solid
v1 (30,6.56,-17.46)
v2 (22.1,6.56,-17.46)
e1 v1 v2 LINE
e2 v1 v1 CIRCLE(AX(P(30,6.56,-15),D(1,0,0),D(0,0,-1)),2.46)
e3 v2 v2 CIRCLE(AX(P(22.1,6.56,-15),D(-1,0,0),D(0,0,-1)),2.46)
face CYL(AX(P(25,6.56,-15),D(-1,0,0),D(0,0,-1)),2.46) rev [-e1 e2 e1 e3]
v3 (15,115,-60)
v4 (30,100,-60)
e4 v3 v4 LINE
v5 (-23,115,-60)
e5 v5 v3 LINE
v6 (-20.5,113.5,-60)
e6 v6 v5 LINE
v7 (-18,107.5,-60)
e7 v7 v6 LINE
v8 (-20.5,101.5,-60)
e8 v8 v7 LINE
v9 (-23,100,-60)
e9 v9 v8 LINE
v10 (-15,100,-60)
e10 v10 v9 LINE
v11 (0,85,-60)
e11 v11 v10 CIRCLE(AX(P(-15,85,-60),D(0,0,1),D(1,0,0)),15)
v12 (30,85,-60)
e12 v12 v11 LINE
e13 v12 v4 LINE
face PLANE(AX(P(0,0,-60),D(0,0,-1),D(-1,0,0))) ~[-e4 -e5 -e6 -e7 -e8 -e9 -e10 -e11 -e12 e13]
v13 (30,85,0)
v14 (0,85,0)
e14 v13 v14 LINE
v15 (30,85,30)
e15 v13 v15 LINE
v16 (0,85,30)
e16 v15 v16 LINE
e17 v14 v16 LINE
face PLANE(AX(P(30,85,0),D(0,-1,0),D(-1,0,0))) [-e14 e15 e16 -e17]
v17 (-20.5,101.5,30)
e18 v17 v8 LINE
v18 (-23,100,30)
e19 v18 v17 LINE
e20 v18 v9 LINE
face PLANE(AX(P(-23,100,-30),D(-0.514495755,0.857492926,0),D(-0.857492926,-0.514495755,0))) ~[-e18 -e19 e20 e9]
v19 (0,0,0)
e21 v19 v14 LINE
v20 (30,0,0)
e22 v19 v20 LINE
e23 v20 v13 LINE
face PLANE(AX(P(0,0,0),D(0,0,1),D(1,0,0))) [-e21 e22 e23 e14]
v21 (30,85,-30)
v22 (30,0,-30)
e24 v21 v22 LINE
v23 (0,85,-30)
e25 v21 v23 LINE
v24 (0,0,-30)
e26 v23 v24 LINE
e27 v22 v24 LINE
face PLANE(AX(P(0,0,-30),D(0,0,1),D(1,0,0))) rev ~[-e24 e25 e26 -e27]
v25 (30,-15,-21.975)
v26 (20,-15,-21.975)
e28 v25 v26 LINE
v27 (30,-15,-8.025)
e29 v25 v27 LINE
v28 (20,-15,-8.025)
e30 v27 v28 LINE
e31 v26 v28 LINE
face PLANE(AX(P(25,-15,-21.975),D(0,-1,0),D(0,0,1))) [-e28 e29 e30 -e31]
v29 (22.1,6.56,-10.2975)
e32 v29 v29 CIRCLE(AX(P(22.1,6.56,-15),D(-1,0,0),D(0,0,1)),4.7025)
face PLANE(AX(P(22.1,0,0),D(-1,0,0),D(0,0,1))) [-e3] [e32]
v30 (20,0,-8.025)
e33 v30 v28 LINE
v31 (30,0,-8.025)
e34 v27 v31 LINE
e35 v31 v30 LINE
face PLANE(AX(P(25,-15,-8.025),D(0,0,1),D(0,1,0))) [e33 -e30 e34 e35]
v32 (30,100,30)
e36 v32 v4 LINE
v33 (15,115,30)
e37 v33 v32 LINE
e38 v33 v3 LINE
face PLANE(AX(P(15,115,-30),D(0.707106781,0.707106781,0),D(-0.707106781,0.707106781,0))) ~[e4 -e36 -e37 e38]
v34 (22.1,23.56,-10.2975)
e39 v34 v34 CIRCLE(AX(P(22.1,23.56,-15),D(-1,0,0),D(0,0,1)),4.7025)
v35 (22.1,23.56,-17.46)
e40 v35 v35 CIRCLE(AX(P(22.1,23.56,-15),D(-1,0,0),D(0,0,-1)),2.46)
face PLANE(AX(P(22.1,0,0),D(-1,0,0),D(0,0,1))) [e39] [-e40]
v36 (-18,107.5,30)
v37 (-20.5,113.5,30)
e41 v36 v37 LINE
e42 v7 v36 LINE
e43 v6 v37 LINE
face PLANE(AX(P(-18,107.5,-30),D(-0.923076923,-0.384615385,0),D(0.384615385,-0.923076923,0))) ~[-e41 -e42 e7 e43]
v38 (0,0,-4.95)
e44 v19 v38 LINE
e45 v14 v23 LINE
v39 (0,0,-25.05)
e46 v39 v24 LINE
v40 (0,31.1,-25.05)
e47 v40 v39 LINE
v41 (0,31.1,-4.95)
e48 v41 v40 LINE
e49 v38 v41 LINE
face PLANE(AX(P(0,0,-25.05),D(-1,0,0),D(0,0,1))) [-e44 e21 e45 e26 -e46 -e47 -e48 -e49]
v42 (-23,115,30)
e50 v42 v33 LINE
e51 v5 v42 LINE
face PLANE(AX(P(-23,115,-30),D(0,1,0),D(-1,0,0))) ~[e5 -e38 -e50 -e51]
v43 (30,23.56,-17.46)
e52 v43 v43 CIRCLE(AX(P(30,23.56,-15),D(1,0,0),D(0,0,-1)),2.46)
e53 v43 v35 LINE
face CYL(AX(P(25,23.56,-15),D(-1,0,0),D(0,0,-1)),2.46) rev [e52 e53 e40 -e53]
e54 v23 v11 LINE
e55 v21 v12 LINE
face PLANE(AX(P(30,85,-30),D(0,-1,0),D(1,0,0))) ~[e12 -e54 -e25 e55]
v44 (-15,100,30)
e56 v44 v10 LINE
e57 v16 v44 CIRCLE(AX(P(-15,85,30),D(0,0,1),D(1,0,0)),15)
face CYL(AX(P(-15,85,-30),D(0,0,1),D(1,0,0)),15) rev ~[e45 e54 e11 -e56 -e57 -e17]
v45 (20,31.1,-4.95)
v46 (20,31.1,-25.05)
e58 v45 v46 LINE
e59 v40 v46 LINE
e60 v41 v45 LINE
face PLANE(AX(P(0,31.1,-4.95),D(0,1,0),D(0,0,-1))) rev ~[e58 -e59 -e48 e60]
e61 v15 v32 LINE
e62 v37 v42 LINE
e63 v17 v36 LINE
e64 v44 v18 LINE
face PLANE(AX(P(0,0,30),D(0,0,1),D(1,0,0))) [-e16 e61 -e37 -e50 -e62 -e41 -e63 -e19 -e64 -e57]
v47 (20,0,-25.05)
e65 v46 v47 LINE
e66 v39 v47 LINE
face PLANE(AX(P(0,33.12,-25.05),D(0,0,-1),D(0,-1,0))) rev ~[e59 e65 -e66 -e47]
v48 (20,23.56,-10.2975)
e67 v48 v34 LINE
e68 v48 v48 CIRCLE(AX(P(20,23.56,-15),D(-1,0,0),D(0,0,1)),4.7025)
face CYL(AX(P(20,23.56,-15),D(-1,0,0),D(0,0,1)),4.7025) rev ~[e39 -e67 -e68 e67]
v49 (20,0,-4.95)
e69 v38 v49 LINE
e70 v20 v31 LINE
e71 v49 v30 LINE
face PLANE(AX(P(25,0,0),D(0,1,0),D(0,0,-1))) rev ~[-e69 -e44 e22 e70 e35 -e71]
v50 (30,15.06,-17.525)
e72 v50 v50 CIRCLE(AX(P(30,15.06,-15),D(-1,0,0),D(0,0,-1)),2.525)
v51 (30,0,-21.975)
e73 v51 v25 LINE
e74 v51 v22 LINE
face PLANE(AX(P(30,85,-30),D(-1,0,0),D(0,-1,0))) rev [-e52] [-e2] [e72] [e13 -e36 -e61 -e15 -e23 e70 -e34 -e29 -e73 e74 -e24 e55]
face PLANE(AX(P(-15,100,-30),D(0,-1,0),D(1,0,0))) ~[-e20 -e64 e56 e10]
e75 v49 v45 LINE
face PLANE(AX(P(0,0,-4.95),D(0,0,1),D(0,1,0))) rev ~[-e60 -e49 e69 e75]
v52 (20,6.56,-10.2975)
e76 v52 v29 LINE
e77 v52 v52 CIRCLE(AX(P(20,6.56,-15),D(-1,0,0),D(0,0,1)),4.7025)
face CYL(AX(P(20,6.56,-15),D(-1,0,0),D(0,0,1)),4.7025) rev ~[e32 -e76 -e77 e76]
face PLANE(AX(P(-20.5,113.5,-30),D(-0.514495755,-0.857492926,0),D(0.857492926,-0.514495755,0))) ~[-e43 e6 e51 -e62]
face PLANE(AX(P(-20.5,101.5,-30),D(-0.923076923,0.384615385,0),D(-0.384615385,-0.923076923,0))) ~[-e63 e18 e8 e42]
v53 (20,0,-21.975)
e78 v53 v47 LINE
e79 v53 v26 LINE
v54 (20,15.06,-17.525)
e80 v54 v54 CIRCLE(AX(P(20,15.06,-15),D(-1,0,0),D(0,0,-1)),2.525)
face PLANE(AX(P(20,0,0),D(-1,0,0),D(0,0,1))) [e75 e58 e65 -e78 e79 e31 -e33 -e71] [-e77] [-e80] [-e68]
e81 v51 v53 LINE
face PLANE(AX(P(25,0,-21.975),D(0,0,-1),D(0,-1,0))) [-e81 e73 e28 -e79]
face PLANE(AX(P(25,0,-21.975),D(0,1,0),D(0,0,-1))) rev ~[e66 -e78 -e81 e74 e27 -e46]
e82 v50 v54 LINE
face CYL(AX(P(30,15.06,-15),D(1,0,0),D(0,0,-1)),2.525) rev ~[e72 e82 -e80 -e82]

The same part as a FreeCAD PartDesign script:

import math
import FreeCAD as App
import Part
import Sketcher
Q = App.Units.Quantity


def add_polygon(sketch, points):
    """Adds a closed chain of lines whose ends are joined by coincident constraints."""
    first, n = sketch.GeometryCount, len(points)
    for a, b in zip(points, points[1:] + points[:1]):
        sketch.addGeometry(Part.LineSegment(App.Vector(*a, 0), App.Vector(*b, 0)), False)
    for i in range(n):
        sketch.addConstraint(Sketcher.Constraint("Coincident", first + i, 2, first + (i + 1) % n, 1))

doc = App.newDocument("Part")
body = doc.addObject("PartDesign::Body", "Body")

sketch1 = doc.addObject("Sketcher::SketchObject", "Sketch")
body.addObject(sketch1)
sketch1.AttachmentSupport = (doc.XY_Plane, [""])
sketch1.MapMode = "FlatFace"
add_polygon(sketch1, [(0, 40), (0, 0), (25, 0), (25, 40)])
sketch1.addConstraint(Sketcher.Constraint("Vertical", 0))
sketch1.addConstraint(Sketcher.Constraint("Horizontal", 1))
sketch1.addConstraint(Sketcher.Constraint("Vertical", 2))
sketch1.addConstraint(Sketcher.Constraint("Horizontal", 3))
sketch1.addConstraint(Sketcher.Constraint("Coincident", 0, 2, -1, 1))
sketch1.addConstraint(Sketcher.Constraint("DistanceX", 1, 1, 1, 2, Q("25 mm")))
sketch1.addConstraint(Sketcher.Constraint("DistanceY", 0, 2, 0, 1, Q("40 mm")))
pad1 = doc.addObject("PartDesign::Pad", "Pad")
body.addObject(pad1)
pad1.Profile = sketch1
pad1.Length = 30
pad1.Reversed = True

sketch2 = doc.addObject("Sketcher::SketchObject", "Sketch001")
body.addObject(sketch2)
sketch2.AttachmentSupport = (doc.YZ_Plane, [""])
sketch2.MapMode = "FlatFace"
sketch2.AttachmentOffset = App.Placement(App.Vector(0, 0, 25), App.Rotation())
sketch2.addGeometry(Part.Circle(App.Vector(6.6, -15, 0), App.Vector(0, 0, 1), 2.5), False)
sketch2.addConstraint(Sketcher.Constraint("Diameter", 0, Q("4.92 mm")))
sketch2.addConstraint(Sketcher.Constraint("DistanceY", 0, 3, -1, 1, Q("15 mm")))
sketch2.addConstraint(Sketcher.Constraint("DistanceX", -1, 1, 0, 3, Q("6.56 mm")))
pocket1 = doc.addObject("PartDesign::Pocket", "Pocket")
body.addObject(pocket1)
pocket1.Profile = sketch2
pocket1.Length = 30

sketch3 = doc.addObject("Sketcher::SketchObject", "Sketch002")
body.addObject(sketch3)
sketch3.AttachmentSupport = (doc.YZ_Plane, [""])
sketch3.MapMode = "FlatFace"
add_polygon(sketch3, [(0, -25), (0, -5), (33, -5), (33, -25)])
sketch3.addConstraint(Sketcher.Constraint("Vertical", 0))
sketch3.addConstraint(Sketcher.Constraint("Horizontal", 1))
sketch3.addConstraint(Sketcher.Constraint("Vertical", 2))
sketch3.addConstraint(Sketcher.Constraint("Horizontal", 3))
sketch3.addConstraint(Sketcher.Constraint("PointOnObject", 0, 2, -2))
sketch3.addConstraint(Sketcher.Constraint("DistanceY", 0, 1, 0, 2, Q("20.1 mm")))
sketch3.addConstraint(Sketcher.Constraint("DistanceX", 1, 1, 1, 2, Q("33.12 mm")))
sketch3.addConstraint(Sketcher.Constraint("DistanceY", 0, 2, -1, 1, Q("4.95 mm")))
pocket2 = doc.addObject("PartDesign::Pocket", "Pocket001")
body.addObject(pocket2)
pocket2.Profile = sketch3
pocket2.Length = 20
pocket2.Reversed = True

sketch4 = doc.addObject("Sketcher::SketchObject", "Sketch003")
body.addObject(sketch4)
sketch4.AttachmentSupport = (doc.XZ_Plane, [""])
sketch4.MapMode = "FlatFace"
add_polygon(sketch4, [(25, -8), (20, -8), (20, -22), (25, -22)])
sketch4.addConstraint(Sketcher.Constraint("Horizontal", 0))
sketch4.addConstraint(Sketcher.Constraint("Vertical", 1))
sketch4.addConstraint(Sketcher.Constraint("Horizontal", 2))
sketch4.addConstraint(Sketcher.Constraint("Vertical", 3))
sketch4.addConstraint(Sketcher.Constraint("DistanceY", 1, 2, 1, 1, Q("13.95 mm")))
sketch4.addConstraint(Sketcher.Constraint("DistanceX", 0, 2, 0, 1, Q("5 mm")))
sketch4.addConstraint(Sketcher.Constraint("DistanceX", -1, 1, 0, 2, Q("20 mm")))
sketch4.addConstraint(Sketcher.Constraint("DistanceY", 0, 2, -1, 1, Q("8.025 mm")))
pad2 = doc.addObject("PartDesign::Pad", "Pad001")
body.addObject(pad2)
pad2.Profile = sketch4
pad2.Length = 15

sketch5 = doc.addObject("Sketcher::SketchObject", "Sketch004")
body.addObject(sketch5)
sketch5.AttachmentSupport = (doc.YZ_Plane, [""])
sketch5.MapMode = "FlatFace"
sketch5.AttachmentOffset = App.Placement(App.Vector(0, 0, 20), App.Rotation())
sketch5.addGeometry(Part.Circle(App.Vector(6.6, -15, 0), App.Vector(0, 0, 1), 4.7), False)
sketch5.addGeometry(Part.Circle(App.Vector(6.6, -15, 0), App.Vector(0, 0, 1), 2.5), False)
sketch5.addConstraint(Sketcher.Constraint("Coincident", 1, 3, 0, 3))
sketch5.addConstraint(Sketcher.Constraint("Diameter", 0, Q("9.405 mm")))
sketch5.addConstraint(Sketcher.Constraint("Diameter", 1, Q("4.92 mm")))
sketch5.addConstraint(Sketcher.Constraint("DistanceY", 0, 3, -1, 1, Q("15 mm")))
sketch5.addConstraint(Sketcher.Constraint("DistanceX", -1, 1, 0, 3, Q("6.56 mm")))
pocket3 = doc.addObject("PartDesign::Pocket", "Pocket002")
body.addObject(pocket3)
pocket3.Profile = sketch5
pocket3.Length = 2.1
pocket3.Reversed = True

sketch6 = doc.addObject("Sketcher::SketchObject", "Sketch005")
body.addObject(sketch6)
sketch6.AttachmentSupport = (doc.YZ_Plane, [""])
sketch6.MapMode = "FlatFace"
sketch6.AttachmentOffset = App.Placement(App.Vector(0, 0, 25), App.Rotation())
sketch6.addGeometry(Part.Circle(App.Vector(23.6, -15, 0), App.Vector(0, 0, 1), 2.5), False)
sketch6.addConstraint(Sketcher.Constraint("Diameter", 0, Q("4.92 mm")))
sketch6.addConstraint(Sketcher.Constraint("DistanceY", 0, 3, -1, 1, Q("15 mm")))
sketch6.addConstraint(Sketcher.Constraint("DistanceX", -1, 1, 0, 3, Q("23.56 mm")))
pocket4 = doc.addObject("PartDesign::Pocket", "Pocket003")
body.addObject(pocket4)
pocket4.Profile = sketch6
pocket4.Length = 10

sketch7 = doc.addObject("Sketcher::SketchObject", "Sketch006")
body.addObject(sketch7)
sketch7.AttachmentSupport = (doc.YZ_Plane, [""])
sketch7.MapMode = "FlatFace"
sketch7.AttachmentOffset = App.Placement(App.Vector(0, 0, 20), App.Rotation())
sketch7.addGeometry(Part.Circle(App.Vector(23.6, -15, 0), App.Vector(0, 0, 1), 4.7), False)
sketch7.addGeometry(Part.Circle(App.Vector(23.6, -15, 0), App.Vector(0, 0, 1), 2.5), False)
sketch7.addConstraint(Sketcher.Constraint("Coincident", 1, 3, 0, 3))
sketch7.addConstraint(Sketcher.Constraint("Diameter", 0, Q("9.405 mm")))
sketch7.addConstraint(Sketcher.Constraint("Diameter", 1, Q("4.92 mm")))
sketch7.addConstraint(Sketcher.Constraint("DistanceY", 0, 3, -1, 1, Q("15 mm")))
sketch7.addConstraint(Sketcher.Constraint("DistanceX", -1, 1, 0, 3, Q("23.56 mm")))
pocket5 = doc.addObject("PartDesign::Pocket", "Pocket004")
body.addObject(pocket5)
pocket5.Profile = sketch7
pocket5.Length = 2.1
pocket5.Reversed = True

sketch8 = doc.addObject("Sketcher::SketchObject", "Sketch007")
body.addObject(sketch8)
sketch8.AttachmentSupport = (doc.YZ_Plane, [""])
sketch8.MapMode = "FlatFace"
sketch8.AttachmentOffset = App.Placement(App.Vector(0, 0, 25), App.Rotation())
add_polygon(sketch8, [(0, -30), (40, -30), (40, 0), (0, 0), (0, -8), (-15, -8), (-15, -22), (0, -22)])
sketch8.addGeometry(Part.Circle(App.Vector(6.6, -15, 0), App.Vector(0, 0, 1), 2.5), False)
sketch8.addGeometry(Part.Circle(App.Vector(23.6, -15, 0), App.Vector(0, 0, 1), 2.5), False)
sketch8.addConstraint(Sketcher.Constraint("Horizontal", 0))
sketch8.addConstraint(Sketcher.Constraint("Vertical", 1))
sketch8.addConstraint(Sketcher.Constraint("Horizontal", 2))
sketch8.addConstraint(Sketcher.Constraint("Vertical", 3))
sketch8.addConstraint(Sketcher.Constraint("Horizontal", 4))
sketch8.addConstraint(Sketcher.Constraint("Vertical", 5))
sketch8.addConstraint(Sketcher.Constraint("Horizontal", 6))
sketch8.addConstraint(Sketcher.Constraint("Vertical", 7))
sketch8.addConstraint(Sketcher.Constraint("Coincident", 2, 2, -1, 1))
sketch8.addConstraint(Sketcher.Constraint("Equal", 8, 9))
sketch8.addConstraint(Sketcher.Constraint("PointOnObject", 6, 2, -2))
sketch8.addConstraint(Sketcher.Constraint("Horizontal", 8, 3, 9, 3))
sketch8.addConstraint(Sketcher.Constraint("Equal", 3, 7))
sketch8.addConstraint(Sketcher.Constraint("Diameter", 8, Q("4.92 mm")))
sketch8.addConstraint(Sketcher.Constraint("DistanceX", 0, 1, 0, 2, Q("40 mm")))
sketch8.addConstraint(Sketcher.Constraint("DistanceX", 4, 2, 4, 1, Q("15 mm")))
sketch8.addConstraint(Sketcher.Constraint("DistanceY", 1, 1, 1, 2, Q("30 mm")))
sketch8.addConstraint(Sketcher.Constraint("DistanceY", 8, 3, -1, 1, Q("15 mm")))
sketch8.addConstraint(Sketcher.Constraint("DistanceX", 8, 3, 9, 3, Q("17 mm")))
sketch8.addConstraint(Sketcher.Constraint("DistanceY", 5, 2, 5, 1, Q("13.95 mm")))
sketch8.addConstraint(Sketcher.Constraint("DistanceX", -1, 1, 8, 3, Q("6.56 mm")))
pad3 = doc.addObject("PartDesign::Pad", "Pad002")
body.addObject(pad3)
pad3.Profile = sketch8
pad3.Length = 5

sketch9 = doc.addObject("Sketcher::SketchObject", "Sketch008")
body.addObject(sketch9)
sketch9.AttachmentSupport = (doc.XZ_Plane, [""])
sketch9.MapMode = "FlatFace"
sketch9.AttachmentOffset = App.Placement(App.Vector(0, 0, -40), App.Rotation())
add_polygon(sketch9, [(30, -30), (0, -30), (0, 0), (30, 0)])
sketch9.addConstraint(Sketcher.Constraint("Horizontal", 0))
sketch9.addConstraint(Sketcher.Constraint("Vertical", 1))
sketch9.addConstraint(Sketcher.Constraint("Horizontal", 2))
sketch9.addConstraint(Sketcher.Constraint("Vertical", 3))
sketch9.addConstraint(Sketcher.Constraint("Coincident", 1, 2, -1, 1))
sketch9.addConstraint(Sketcher.Constraint("Equal", 2, 1))
sketch9.addConstraint(Sketcher.Constraint("DistanceX", 0, 2, 0, 1, Q("30 mm")))
pad4 = doc.addObject("PartDesign::Pad", "Pad003")
body.addObject(pad4)
pad4.Profile = sketch9
pad4.Length = 30
pad4.Reversed = True

sketch10 = doc.addObject("Sketcher::SketchObject", "Sketch009")
body.addObject(sketch10)
sketch10.AttachmentSupport = (doc.YZ_Plane, [""])
sketch10.MapMode = "FlatFace"
sketch10.AttachmentOffset = App.Placement(App.Vector(0, 0, 30), App.Rotation())
sketch10.addGeometry(Part.Circle(App.Vector(15.1, -15, 0), App.Vector(0, 0, 1), 2.5), False)
sketch10.addConstraint(Sketcher.Constraint("Diameter", 0, Q("5.05 mm")))
sketch10.addConstraint(Sketcher.Constraint("DistanceY", 0, 3, -1, 1, Q("15 mm")))
sketch10.addConstraint(Sketcher.Constraint("DistanceX", -1, 1, 0, 3, Q("15.06 mm")))
pocket6 = doc.addObject("PartDesign::Pocket", "Pocket005")
body.addObject(pocket6)
pocket6.Profile = sketch10
pocket6.Length = 30

sketch11 = doc.addObject("Sketcher::SketchObject", "Sketch010")
body.addObject(sketch11)
sketch11.AttachmentSupport = (doc.XY_Plane, [""])
sketch11.MapMode = "FlatFace"
sketch11.addGeometry(Part.LineSegment(App.Vector(0, 70, 0), App.Vector(30, 70, 0)), False)
sketch11.addGeometry(Part.LineSegment(App.Vector(30, 70, 0), App.Vector(30, 100, 0)), False)
sketch11.addGeometry(Part.LineSegment(App.Vector(30, 100, 0), App.Vector(15, 115, 0)), False)
sketch11.addGeometry(Part.LineSegment(App.Vector(15, 115, 0), App.Vector(-23, 115, 0)), False)
sketch11.addGeometry(Part.LineSegment(App.Vector(-23, 115, 0), App.Vector(-20.5, 113.5, 0)), False)
sketch11.addGeometry(Part.LineSegment(App.Vector(-20.5, 113.5, 0), App.Vector(-18, 107.5, 0)), False)
sketch11.addGeometry(Part.LineSegment(App.Vector(-18, 107.5, 0), App.Vector(-20.5, 101.5, 0)), False)
sketch11.addGeometry(Part.LineSegment(App.Vector(-20.5, 101.5, 0), App.Vector(-23, 100, 0)), False)
sketch11.addGeometry(Part.LineSegment(App.Vector(-23, 100, 0), App.Vector(-15, 100, 0)), False)
sketch11.addGeometry(Part.ArcOfCircle(Part.Circle(App.Vector(-15, 85, 0), App.Vector(0, 0, 1), 15), math.radians(0), math.radians(90)), False)
sketch11.addGeometry(Part.LineSegment(App.Vector(0, 85, 0), App.Vector(0, 70, 0)), False)
sketch11.addConstraint(Sketcher.Constraint("Coincident", 0, 2, 1, 1))
sketch11.addConstraint(Sketcher.Constraint("Coincident", 1, 2, 2, 1))
sketch11.addConstraint(Sketcher.Constraint("Coincident", 2, 2, 3, 1))
sketch11.addConstraint(Sketcher.Constraint("Coincident", 3, 2, 4, 1))
sketch11.addConstraint(Sketcher.Constraint("Coincident", 4, 2, 5, 1))
sketch11.addConstraint(Sketcher.Constraint("Coincident", 5, 2, 6, 1))
sketch11.addConstraint(Sketcher.Constraint("Coincident", 6, 2, 7, 1))
sketch11.addConstraint(Sketcher.Constraint("Coincident", 7, 2, 8, 1))
sketch11.addConstraint(Sketcher.Constraint("Tangent", 8, 2, 9, 2))
sketch11.addConstraint(Sketcher.Constraint("Tangent", 9, 1, 10, 1))
sketch11.addConstraint(Sketcher.Constraint("Coincident", 10, 2, 0, 1))
sketch11.addConstraint(Sketcher.Constraint("Horizontal", 0))
sketch11.addConstraint(Sketcher.Constraint("Vertical", 1))
sketch11.addConstraint(Sketcher.Constraint("Horizontal", 3))
sketch11.addConstraint(Sketcher.Constraint("Horizontal", 8))
sketch11.addConstraint(Sketcher.Constraint("Vertical", 10))
sketch11.addConstraint(Sketcher.Constraint("PointOnObject", 9, 1, -2))
sketch11.addConstraint(Sketcher.Constraint("Horizontal", 1, 2, 7, 2))
sketch11.addConstraint(Sketcher.Constraint("Vertical", 4, 2, 6, 2))
sketch11.addConstraint(Sketcher.Constraint("Vertical", 3, 2, 7, 2))
sketch11.addConstraint(Sketcher.Constraint("Equal", 0, 1))
sketch11.addConstraint(Sketcher.Constraint("Equal", 5, 6))
sketch11.addConstraint(Sketcher.Constraint("Equal", 4, 7))
sketch11.addConstraint(Sketcher.Constraint("Radius", 9, Q("15 mm")))
sketch11.addConstraint(Sketcher.Constraint("DistanceX", 0, 1, 0, 2, Q("30 mm")))
sketch11.addConstraint(Sketcher.Constraint("DistanceX", -1, 1, 2, 2, Q("15 mm")))
sketch11.addConstraint(Sketcher.Constraint("DistanceY", 1, 2, 2, 2, Q("15 mm")))
sketch11.addConstraint(Sketcher.Constraint("DistanceX", 3, 2, 3, 1, Q("38 mm")))
sketch11.addConstraint(Sketcher.Constraint("DistanceY", -1, 1, 9, 3, Q("85 mm")))
sketch11.addConstraint(Sketcher.Constraint("DistanceX", 5, 2, -1, 1, Q("18 mm")))
sketch11.addConstraint(Sketcher.Constraint("DistanceY", 5, 2, 4, 2, Q("6 mm")))
sketch11.addConstraint(Sketcher.Constraint("Distance", 5, Q("6.5 mm")))
pad5 = doc.addObject("PartDesign::Pad", "Pad004")
body.addObject(pad5)
pad5.Profile = sketch11
pad5.Length = 30
pad5.Reversed = True

sketch12 = doc.addObject("Sketcher::SketchObject", "Sketch011")
body.addObject(sketch12)
sketch12.AttachmentSupport = (doc.YZ_Plane, [""])
sketch12.MapMode = "FlatFace"
add_polygon(sketch12, [(33.1, -5), (33.1, -25.1), (31.1, -25.1), (31.1, -5)])
sketch12.addConstraint(Sketcher.Constraint("Vertical", 0))
sketch12.addConstraint(Sketcher.Constraint("Horizontal", 1))
sketch12.addConstraint(Sketcher.Constraint("Vertical", 2))
sketch12.addConstraint(Sketcher.Constraint("Horizontal", 3))
sketch12.addConstraint(Sketcher.Constraint("DistanceX", 1, 2, 1, 1, Q("2.02 mm")))
sketch12.addConstraint(Sketcher.Constraint("DistanceY", 0, 2, 0, 1, Q("20.1 mm")))
sketch12.addConstraint(Sketcher.Constraint("DistanceX", -1, 1, 1, 2, Q("31.1 mm")))
sketch12.addConstraint(Sketcher.Constraint("DistanceY", 0, 2, -1, 1, Q("25.05 mm")))
pad6 = doc.addObject("PartDesign::Pad", "Pad005")
body.addObject(pad6)
pad6.Profile = sketch12
pad6.Length = 20

sketch13 = doc.addObject("Sketcher::SketchObject", "Sketch012")
body.addObject(sketch13)
sketch13.AttachmentSupport = (doc.XY_Plane, [""])
sketch13.MapMode = "FlatFace"
sketch13.addGeometry(Part.LineSegment(App.Vector(15, 115, 0), App.Vector(-23, 115, 0)), False)
sketch13.addGeometry(Part.LineSegment(App.Vector(-23, 115, 0), App.Vector(-20.5, 113.5, 0)), False)
sketch13.addGeometry(Part.LineSegment(App.Vector(-20.5, 113.5, 0), App.Vector(-18, 107.5, 0)), False)
sketch13.addGeometry(Part.LineSegment(App.Vector(-18, 107.5, 0), App.Vector(-20.5, 101.5, 0)), False)
sketch13.addGeometry(Part.LineSegment(App.Vector(-20.5, 101.5, 0), App.Vector(-23, 100, 0)), False)
sketch13.addGeometry(Part.LineSegment(App.Vector(-23, 100, 0), App.Vector(-15, 100, 0)), False)
sketch13.addGeometry(Part.ArcOfCircle(Part.Circle(App.Vector(-15, 85, 0), App.Vector(0, 0, 1), 15), math.radians(0), math.radians(90)), False)
sketch13.addGeometry(Part.LineSegment(App.Vector(0, 85, 0), App.Vector(30, 85, 0)), False)
sketch13.addGeometry(Part.LineSegment(App.Vector(30, 85, 0), App.Vector(30, 100, 0)), False)
sketch13.addGeometry(Part.LineSegment(App.Vector(30, 100, 0), App.Vector(15, 115, 0)), False)
sketch13.addConstraint(Sketcher.Constraint("Coincident", 0, 2, 1, 1))
sketch13.addConstraint(Sketcher.Constraint("Coincident", 1, 2, 2, 1))
sketch13.addConstraint(Sketcher.Constraint("Coincident", 2, 2, 3, 1))
sketch13.addConstraint(Sketcher.Constraint("Coincident", 3, 2, 4, 1))
sketch13.addConstraint(Sketcher.Constraint("Coincident", 4, 2, 5, 1))
sketch13.addConstraint(Sketcher.Constraint("Tangent", 5, 2, 6, 2))
sketch13.addConstraint(Sketcher.Constraint("Coincident", 6, 1, 7, 1))
sketch13.addConstraint(Sketcher.Constraint("Coincident", 7, 2, 8, 1))
sketch13.addConstraint(Sketcher.Constraint("Coincident", 8, 2, 9, 1))
sketch13.addConstraint(Sketcher.Constraint("Coincident", 9, 2, 0, 1))
sketch13.addConstraint(Sketcher.Constraint("Horizontal", 0))
sketch13.addConstraint(Sketcher.Constraint("Horizontal", 5))
sketch13.addConstraint(Sketcher.Constraint("Horizontal", 7))
sketch13.addConstraint(Sketcher.Constraint("Vertical", 8))
sketch13.addConstraint(Sketcher.Constraint("PointOnObject", 6, 1, -2))
sketch13.addConstraint(Sketcher.Constraint("Horizontal", 5, 2, 8, 2))
sketch13.addConstraint(Sketcher.Constraint("Vertical", 1, 2, 3, 2))
sketch13.addConstraint(Sketcher.Constraint("Vertical", 0, 2, 4, 2))
sketch13.addConstraint(Sketcher.Constraint("Equal", 2, 3))
sketch13.addConstraint(Sketcher.Constraint("Equal", 1, 4))
sketch13.addConstraint(Sketcher.Constraint("Radius", 6, Q("15 mm")))
sketch13.addConstraint(Sketcher.Constraint("DistanceX", 0, 2, 0, 1, Q("38 mm")))
sketch13.addConstraint(Sketcher.Constraint("DistanceX", 5, 1, 5, 2, Q("8 mm")))
sketch13.addConstraint(Sketcher.Constraint("DistanceX", 7, 1, 7, 2, Q("30 mm")))
sketch13.addConstraint(Sketcher.Constraint("DistanceY", 8, 1, 8, 2, Q("15 mm")))
sketch13.addConstraint(Sketcher.Constraint("Angle", 9, Q("135 deg")))
sketch13.addConstraint(Sketcher.Constraint("DistanceY", -1, 1, 6, 3, Q("85 mm")))
sketch13.addConstraint(Sketcher.Constraint("DistanceX", 2, 2, -1, 1, Q("18 mm")))
sketch13.addConstraint(Sketcher.Constraint("DistanceY", 2, 2, 1, 2, Q("6 mm")))
sketch13.addConstraint(Sketcher.Constraint("Distance", 2, Q("6.5 mm")))
pad7 = doc.addObject("PartDesign::Pad", "Pad006")
body.addObject(pad7)
pad7.Profile = sketch13
pad7.Length = 30
doc.recompute()

datumplane = doc.addObject("PartDesign::Plane", "DatumPlane")
body.addObject(datumplane)
datumplane.AttachmentSupport = (doc.XY_Plane, [""])
datumplane.MapMode = "FlatFace"
datumplane.AttachmentOffset = App.Placement(App.Vector(0, 0, -15), App.Rotation())
mirrored = doc.addObject("PartDesign::Mirrored", "Mirrored")
body.addObject(mirrored)
mirrored.Originals = [pad7]
mirrored.MirrorPlane = (datumplane, [""])
body.Tip = mirrored

doc.recompute()
